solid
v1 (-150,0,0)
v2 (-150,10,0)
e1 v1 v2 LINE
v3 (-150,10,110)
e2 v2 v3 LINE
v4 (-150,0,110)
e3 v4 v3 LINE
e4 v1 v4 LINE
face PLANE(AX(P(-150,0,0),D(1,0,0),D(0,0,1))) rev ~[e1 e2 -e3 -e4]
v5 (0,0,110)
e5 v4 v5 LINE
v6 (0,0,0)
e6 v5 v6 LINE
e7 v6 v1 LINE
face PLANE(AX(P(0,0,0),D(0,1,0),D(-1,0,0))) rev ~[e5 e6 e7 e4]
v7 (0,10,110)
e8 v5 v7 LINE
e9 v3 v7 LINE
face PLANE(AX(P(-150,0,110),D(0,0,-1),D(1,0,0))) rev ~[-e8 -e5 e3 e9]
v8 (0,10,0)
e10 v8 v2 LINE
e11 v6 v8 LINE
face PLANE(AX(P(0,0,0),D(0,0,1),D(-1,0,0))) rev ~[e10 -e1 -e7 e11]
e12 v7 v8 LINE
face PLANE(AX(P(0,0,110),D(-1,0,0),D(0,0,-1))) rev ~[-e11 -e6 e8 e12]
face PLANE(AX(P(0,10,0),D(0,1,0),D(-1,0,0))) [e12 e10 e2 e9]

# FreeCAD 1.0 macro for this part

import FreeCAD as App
import Part
import Sketcher
from FreeCAD import Vector
Q = App.Units.Quantity

doc = App.newDocument("Part")
body = doc.addObject("PartDesign::Body", "Body")

# Sketch on XZ plane
sketch1 = body.newObject("Sketcher::SketchObject", "Sketch")
sketch1.AttachmentSupport = (doc.getObject("XZ_Plane"), [""])
sketch1.MapMode = "FlatFace"
sketch1.addGeometry(Part.LineSegment(Vector(0, 110, 0), Vector(0, 0, 0)), False)
sketch1.addGeometry(Part.LineSegment(Vector(0, 0, 0), Vector(-150, 0, 0)), False)
sketch1.addGeometry(Part.LineSegment(Vector(-150, 0, 0), Vector(-150, 110, 0)), False)
sketch1.addGeometry(Part.LineSegment(Vector(-150, 110, 0), Vector(0, 110, 0)), False)
sketch1.addConstraint(Sketcher.Constraint("Coincident", 0, 2, 1, 1))
sketch1.addConstraint(Sketcher.Constraint("Coincident", 1, 2, 2, 1))
sketch1.addConstraint(Sketcher.Constraint("Coincident", 2, 2, 3, 1))
sketch1.addConstraint(Sketcher.Constraint("Coincident", 3, 2, 0, 1))
sketch1.addConstraint(Sketcher.Constraint("Vertical", 0))
sketch1.addConstraint(Sketcher.Constraint("Horizontal", 1))
sketch1.addConstraint(Sketcher.Constraint("Vertical", 2))
sketch1.addConstraint(Sketcher.Constraint("Horizontal", 3))
sketch1.addConstraint(Sketcher.Constraint("Coincident", 0, 2, -1, 1))
sketch1.addConstraint(Sketcher.Constraint("DistanceX", 1, 2, 1, 1, Q("150 mm")))
sketch1.addConstraint(Sketcher.Constraint("DistanceY", 0, 2, 0, 1, Q("110 mm")))
pad1 = body.newObject("PartDesign::Pad", "Pad")
pad1.Profile = sketch1
pad1.Length = 10
pad1.Reversed = True

doc.recompute()
